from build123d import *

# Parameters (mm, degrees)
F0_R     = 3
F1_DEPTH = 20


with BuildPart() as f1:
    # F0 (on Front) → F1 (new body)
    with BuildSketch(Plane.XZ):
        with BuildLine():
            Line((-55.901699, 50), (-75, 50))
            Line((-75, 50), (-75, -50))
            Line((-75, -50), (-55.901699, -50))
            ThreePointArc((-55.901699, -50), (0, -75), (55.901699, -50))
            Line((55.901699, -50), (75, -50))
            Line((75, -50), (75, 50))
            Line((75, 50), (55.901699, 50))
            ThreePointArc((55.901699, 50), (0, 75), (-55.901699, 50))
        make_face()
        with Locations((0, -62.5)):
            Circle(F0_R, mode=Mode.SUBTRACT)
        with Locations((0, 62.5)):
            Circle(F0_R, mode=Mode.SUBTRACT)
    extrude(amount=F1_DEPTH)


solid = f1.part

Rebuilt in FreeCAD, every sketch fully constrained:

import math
import FreeCAD as App
import Part
import Sketcher
from FreeCAD import Vector
Q = App.Units.Quantity

doc = App.newDocument("Part")
body = doc.addObject("PartDesign::Body", "Body")

sketch1 = body.newObject("Sketcher::SketchObject", "Sketch")
sketch1.AttachmentSupport = (doc.getObject("XZ_Plane"), [""])
sketch1.MapMode = "FlatFace"
sketch1.addGeometry([
    Part.LineSegment(Vector(-55.901699, 50, 0), Vector(-75, 50, 0)),
    Part.LineSegment(Vector(-75, 50, 0), Vector(-75, -50, 0)),
    Part.LineSegment(Vector(-75, -50, 0), Vector(-55.901699, -50, 0)),
    Part.ArcOfCircle(Part.Circle(Vector(0, -0.000001, 0), Vector(0, 0, 1), 74.999999), math.radians(-138.189685), math.radians(-41.810315)),
    Part.LineSegment(Vector(55.901699, -50, 0), Vector(75, -50, 0)),
    Part.LineSegment(Vector(75, -50, 0), Vector(75, 50, 0)),
    Part.LineSegment(Vector(75, 50, 0), Vector(55.901699, 50, 0)),
    Part.ArcOfCircle(Part.Circle(Vector(0, 0.000001, 0), Vector(0, 0, 1), 74.999999), math.radians(41.810315), math.radians(138.189685)),
    Part.Circle(Vector(0, -62.5, 0), Vector(0, 0, 1), 3),
    Part.Circle(Vector(0, 62.5, 0), Vector(0, 0, 1), 3),
], False)
sketch1.addConstraint([
    Sketcher.Constraint("Coincident", 0, 2, 1, 1),
    Sketcher.Constraint("Coincident", 1, 2, 2, 1),
    Sketcher.Constraint("Coincident", 2, 2, 3, 1),
    Sketcher.Constraint("Coincident", 3, 2, 4, 1),
    Sketcher.Constraint("Coincident", 4, 2, 5, 1),
    Sketcher.Constraint("Coincident", 5, 2, 6, 1),
    Sketcher.Constraint("Coincident", 6, 2, 7, 1),
    Sketcher.Constraint("Coincident", 7, 2, 0, 1),
    Sketcher.Constraint("Horizontal", 0),
    Sketcher.Constraint("Vertical", 1),
    Sketcher.Constraint("Horizontal", 2),
    Sketcher.Constraint("Horizontal", 4),
    Sketcher.Constraint("Vertical", 5),
    Sketcher.Constraint("Horizontal", 6),
    Sketcher.Constraint("Coincident", 3, 3, -1, 1),
    Sketcher.Constraint("Coincident", 7, 3, -1, 1),
    Sketcher.Constraint("Equal", 3, 7),
    Sketcher.Constraint("Equal", 8, 9),
    Sketcher.Constraint("Symmetric", 8, 3, 9, 3, -1, 1),
    Sketcher.Constraint("Symmetric", 0, 2, 4, 2, -1, 1),
    Sketcher.Constraint("PointOnObject", 8, 3, -2),
    Sketcher.Constraint("Horizontal", 2, 2, 3, 2),
    Sketcher.Constraint("Horizontal", 0, 2, 5, 2),
    Sketcher.Constraint("Diameter", 8, Q("6 mm")),
    Sketcher.Constraint("Radius", 3, Q("74.999999 mm")),
    Sketcher.Constraint("DistanceY", 1, 2, 1, 1, Q("100 mm")),
    Sketcher.Constraint("DistanceX", 0, 2, -1, 1, Q("75 mm")),
    Sketcher.Constraint("DistanceY", 8, 3, 9, 3, Q("125 mm")),
])
pad1 = body.newObject("PartDesign::Pad", "Pad")
pad1.Profile = sketch1
pad1.Length = 20

doc.recompute()
